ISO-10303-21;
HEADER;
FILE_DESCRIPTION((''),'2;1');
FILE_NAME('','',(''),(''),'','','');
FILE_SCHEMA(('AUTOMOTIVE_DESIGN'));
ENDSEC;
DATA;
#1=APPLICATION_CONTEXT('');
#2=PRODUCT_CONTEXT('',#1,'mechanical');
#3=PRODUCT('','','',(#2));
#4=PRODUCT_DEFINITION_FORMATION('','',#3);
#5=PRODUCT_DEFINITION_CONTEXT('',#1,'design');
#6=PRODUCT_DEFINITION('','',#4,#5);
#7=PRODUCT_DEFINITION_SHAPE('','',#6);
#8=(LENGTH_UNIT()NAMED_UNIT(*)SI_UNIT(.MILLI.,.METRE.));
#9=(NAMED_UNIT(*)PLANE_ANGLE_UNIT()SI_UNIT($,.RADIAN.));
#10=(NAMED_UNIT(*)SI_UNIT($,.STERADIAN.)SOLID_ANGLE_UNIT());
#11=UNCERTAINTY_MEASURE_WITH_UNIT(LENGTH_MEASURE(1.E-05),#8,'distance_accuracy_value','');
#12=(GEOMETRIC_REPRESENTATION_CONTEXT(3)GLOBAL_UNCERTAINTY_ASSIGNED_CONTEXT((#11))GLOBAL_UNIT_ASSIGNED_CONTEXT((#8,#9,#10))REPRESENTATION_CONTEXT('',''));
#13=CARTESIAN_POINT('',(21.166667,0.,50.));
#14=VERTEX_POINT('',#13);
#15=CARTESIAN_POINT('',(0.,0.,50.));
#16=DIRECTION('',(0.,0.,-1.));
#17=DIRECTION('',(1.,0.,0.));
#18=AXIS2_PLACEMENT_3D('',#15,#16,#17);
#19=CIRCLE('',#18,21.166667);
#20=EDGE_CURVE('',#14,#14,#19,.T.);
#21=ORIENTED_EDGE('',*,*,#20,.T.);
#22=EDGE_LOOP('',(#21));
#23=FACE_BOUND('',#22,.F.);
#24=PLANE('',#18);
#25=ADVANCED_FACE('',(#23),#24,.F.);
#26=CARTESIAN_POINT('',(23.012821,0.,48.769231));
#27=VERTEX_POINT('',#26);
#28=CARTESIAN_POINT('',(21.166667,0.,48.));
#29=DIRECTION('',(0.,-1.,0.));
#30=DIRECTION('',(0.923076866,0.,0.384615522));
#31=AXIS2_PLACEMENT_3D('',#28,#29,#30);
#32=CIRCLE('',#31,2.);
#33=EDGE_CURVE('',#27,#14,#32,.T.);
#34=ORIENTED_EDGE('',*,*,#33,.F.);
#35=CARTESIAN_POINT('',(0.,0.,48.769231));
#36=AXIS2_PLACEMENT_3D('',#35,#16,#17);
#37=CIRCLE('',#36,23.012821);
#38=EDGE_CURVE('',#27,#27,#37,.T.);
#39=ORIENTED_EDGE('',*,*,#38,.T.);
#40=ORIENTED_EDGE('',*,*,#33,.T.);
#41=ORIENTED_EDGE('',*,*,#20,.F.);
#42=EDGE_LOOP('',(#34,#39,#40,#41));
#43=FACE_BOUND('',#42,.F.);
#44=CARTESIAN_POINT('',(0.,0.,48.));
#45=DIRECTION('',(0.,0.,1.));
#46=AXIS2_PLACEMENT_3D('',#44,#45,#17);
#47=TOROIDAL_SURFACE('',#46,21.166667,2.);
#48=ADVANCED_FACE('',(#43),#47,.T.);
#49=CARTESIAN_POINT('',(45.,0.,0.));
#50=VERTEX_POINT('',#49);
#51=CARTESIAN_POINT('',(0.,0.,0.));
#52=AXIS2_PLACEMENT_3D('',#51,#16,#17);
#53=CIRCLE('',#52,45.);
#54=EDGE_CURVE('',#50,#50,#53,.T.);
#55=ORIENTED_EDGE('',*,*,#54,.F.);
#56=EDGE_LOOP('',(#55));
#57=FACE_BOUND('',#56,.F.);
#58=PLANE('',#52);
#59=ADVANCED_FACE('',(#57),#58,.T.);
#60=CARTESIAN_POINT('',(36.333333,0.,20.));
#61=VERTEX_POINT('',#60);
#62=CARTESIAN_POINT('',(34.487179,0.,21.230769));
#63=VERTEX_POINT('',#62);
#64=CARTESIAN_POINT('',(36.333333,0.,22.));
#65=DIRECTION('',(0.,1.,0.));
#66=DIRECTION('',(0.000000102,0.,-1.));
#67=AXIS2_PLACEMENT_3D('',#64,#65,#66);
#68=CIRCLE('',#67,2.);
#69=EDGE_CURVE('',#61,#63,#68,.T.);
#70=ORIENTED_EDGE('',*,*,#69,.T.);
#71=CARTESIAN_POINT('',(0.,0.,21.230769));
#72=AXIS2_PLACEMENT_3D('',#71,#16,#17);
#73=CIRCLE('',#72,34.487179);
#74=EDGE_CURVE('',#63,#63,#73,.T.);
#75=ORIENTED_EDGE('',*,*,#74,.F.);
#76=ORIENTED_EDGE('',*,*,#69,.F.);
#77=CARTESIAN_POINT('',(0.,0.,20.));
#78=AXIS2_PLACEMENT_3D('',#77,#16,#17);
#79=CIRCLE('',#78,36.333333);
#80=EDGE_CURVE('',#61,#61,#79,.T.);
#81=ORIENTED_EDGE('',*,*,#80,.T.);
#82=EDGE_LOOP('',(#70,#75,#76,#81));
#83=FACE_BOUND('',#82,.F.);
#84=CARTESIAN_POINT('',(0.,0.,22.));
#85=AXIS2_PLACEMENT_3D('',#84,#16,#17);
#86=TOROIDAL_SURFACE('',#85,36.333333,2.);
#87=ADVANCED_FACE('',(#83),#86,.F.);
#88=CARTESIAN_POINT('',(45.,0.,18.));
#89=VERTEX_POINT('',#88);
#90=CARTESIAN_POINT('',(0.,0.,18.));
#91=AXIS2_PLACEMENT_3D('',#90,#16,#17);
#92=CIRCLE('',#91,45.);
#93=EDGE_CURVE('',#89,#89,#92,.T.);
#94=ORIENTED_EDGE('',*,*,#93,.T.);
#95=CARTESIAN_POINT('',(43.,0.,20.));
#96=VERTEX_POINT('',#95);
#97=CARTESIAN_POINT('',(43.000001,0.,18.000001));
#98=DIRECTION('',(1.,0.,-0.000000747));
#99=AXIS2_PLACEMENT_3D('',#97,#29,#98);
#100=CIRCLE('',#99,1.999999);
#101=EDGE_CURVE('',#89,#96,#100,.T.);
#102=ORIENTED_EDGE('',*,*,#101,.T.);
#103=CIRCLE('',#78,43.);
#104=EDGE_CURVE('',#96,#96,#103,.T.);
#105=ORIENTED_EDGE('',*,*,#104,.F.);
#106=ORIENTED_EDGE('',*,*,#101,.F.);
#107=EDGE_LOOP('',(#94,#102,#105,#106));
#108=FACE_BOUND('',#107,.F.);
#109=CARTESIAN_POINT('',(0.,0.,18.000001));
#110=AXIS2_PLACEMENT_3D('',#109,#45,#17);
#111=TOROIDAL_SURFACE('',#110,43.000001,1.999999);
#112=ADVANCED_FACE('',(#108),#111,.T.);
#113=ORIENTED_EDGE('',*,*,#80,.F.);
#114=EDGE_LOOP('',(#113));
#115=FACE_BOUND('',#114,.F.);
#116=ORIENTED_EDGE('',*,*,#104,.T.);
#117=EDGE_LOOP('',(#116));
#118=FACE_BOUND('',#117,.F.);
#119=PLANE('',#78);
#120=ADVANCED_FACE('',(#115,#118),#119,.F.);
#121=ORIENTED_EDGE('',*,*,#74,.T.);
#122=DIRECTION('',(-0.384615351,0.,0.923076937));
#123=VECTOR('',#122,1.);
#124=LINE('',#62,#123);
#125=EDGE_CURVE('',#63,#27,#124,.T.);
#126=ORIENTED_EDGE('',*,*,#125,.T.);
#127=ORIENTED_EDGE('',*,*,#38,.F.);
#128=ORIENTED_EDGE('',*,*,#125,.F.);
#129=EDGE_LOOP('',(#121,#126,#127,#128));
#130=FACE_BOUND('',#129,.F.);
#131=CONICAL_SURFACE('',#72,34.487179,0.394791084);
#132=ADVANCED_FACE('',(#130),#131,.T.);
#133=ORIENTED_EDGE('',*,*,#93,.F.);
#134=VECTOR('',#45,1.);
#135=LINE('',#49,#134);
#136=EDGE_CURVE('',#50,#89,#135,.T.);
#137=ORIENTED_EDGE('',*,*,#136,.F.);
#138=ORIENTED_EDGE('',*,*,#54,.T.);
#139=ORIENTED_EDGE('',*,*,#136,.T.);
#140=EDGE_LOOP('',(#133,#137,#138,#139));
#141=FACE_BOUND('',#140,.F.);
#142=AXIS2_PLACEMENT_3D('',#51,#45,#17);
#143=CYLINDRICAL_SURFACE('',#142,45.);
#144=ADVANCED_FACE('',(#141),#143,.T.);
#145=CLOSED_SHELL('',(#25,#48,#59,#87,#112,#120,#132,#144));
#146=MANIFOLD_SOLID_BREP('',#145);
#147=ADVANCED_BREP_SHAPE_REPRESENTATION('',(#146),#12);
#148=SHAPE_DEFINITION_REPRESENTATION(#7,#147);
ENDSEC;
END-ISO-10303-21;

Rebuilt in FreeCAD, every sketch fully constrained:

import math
import FreeCAD as App
import Part
import Sketcher

V = App.Vector

doc = App.newDocument("Part")
params = doc.addObject("Spreadsheet::Sheet", "Params")
for row, (alias, value) in enumerate([
    ("sketch1_radius", "1.999999 mm"),
    ("sketch1_width", "45 mm"),
    ("sketch1_height", "50 mm"),
    ("sketch1_height2", "18 mm"),
    ("revolution_angle", "360 deg"),
], start=1):
    params.set(f"A{row}", alias)
    params.set(f"B{row}", "=" + value)
    params.setAlias(f"B{row}", alias)

body = doc.addObject("PartDesign::Body", "Body")

sketch1 = body.newObject("Sketcher::SketchObject", "Sketch")
sketch1.AttachmentSupport = (doc.getObject("XZ_Plane"), [""])
sketch1.MapMode = "FlatFace"
sketch1.addGeometry(Part.LineSegment(V(21.2, 50, 0), V(0, 50, 0)), False)
sketch1.addGeometry(Part.LineSegment(V(0, 50, 0), V(0, 0, 0)), False)
sketch1.addGeometry(Part.LineSegment(V(0, 0, 0), V(45, 0, 0)), False)
sketch1.addGeometry(Part.LineSegment(V(45, 0, 0), V(45, 18, 0)), False)
sketch1.addGeometry(Part.ArcOfCircle(Part.Circle(V(43, 18, 0), V(0, 0, 1), 2), math.radians(0), math.radians(90)), False)
sketch1.addGeometry(Part.LineSegment(V(43, 20, 0), V(36.3, 20, 0)), False)
sketch1.addGeometry(Part.ArcOfCircle(Part.Circle(V(36.3, 22, 0), V(0, 0, 1), 2), math.radians(-157), math.radians(-90)), False)
sketch1.addGeometry(Part.LineSegment(V(34.5, 21.2, 0), V(23, 48.8, 0)), False)
sketch1.addGeometry(Part.ArcOfCircle(Part.Circle(V(21.2, 48, 0), V(0, 0, 1), 2), math.radians(23), math.radians(90)), False)
sketch1.addConstraint(Sketcher.Constraint("Coincident", 0, 2, 1, 1))
sketch1.addConstraint(Sketcher.Constraint("Coincident", 1, 2, 2, 1))
sketch1.addConstraint(Sketcher.Constraint("Coincident", 2, 2, 3, 1))
sketch1.addConstraint(Sketcher.Constraint("Tangent", 3, 2, 4, 1))
sketch1.addConstraint(Sketcher.Constraint("Tangent", 4, 2, 5, 1))
sketch1.addConstraint(Sketcher.Constraint("Tangent", 5, 2, 6, 2))
sketch1.addConstraint(Sketcher.Constraint("Tangent", 6, 1, 7, 1))
sketch1.addConstraint(Sketcher.Constraint("Tangent", 7, 2, 8, 1))
sketch1.addConstraint(Sketcher.Constraint("Tangent", 8, 2, 0, 1))
sketch1.addConstraint(Sketcher.Constraint("Horizontal", 0))
sketch1.addConstraint(Sketcher.Constraint("Vertical", 1))
sketch1.addConstraint(Sketcher.Constraint("Horizontal", 2))
sketch1.addConstraint(Sketcher.Constraint("Vertical", 3))
sketch1.addConstraint(Sketcher.Constraint("Horizontal", 5))
sketch1.addConstraint(Sketcher.Constraint("Coincident", 1, 2, -1, 1))
sketch1.addConstraint(Sketcher.Constraint("Equal", 4, 6))
sketch1.addConstraint(Sketcher.Constraint("Equal", 6, 8))
sketch1.addConstraint(Sketcher.Constraint("Radius", 4, 1.999999))
sketch1.addConstraint(Sketcher.Constraint("DistanceX", 2, 1, 2, 2, 45.0))
sketch1.addConstraint(Sketcher.Constraint("DistanceY", 1, 2, 1, 1, 50.0))
sketch1.addConstraint(Sketcher.Constraint("DistanceY", 3, 1, 3, 2, 18.0))
sketch1.addConstraint(Sketcher.Constraint("DistanceX", 0, 2, 0, 1, 21.166667))
sketch1.addConstraint(Sketcher.Constraint("DistanceX", 5, 2, 5, 1, 6.666667))
sketch1.setExpression("Constraints[17]", "Params.sketch1_radius")
sketch1.setExpression("Constraints[18]", "Params.sketch1_width")
sketch1.setExpression("Constraints[19]", "Params.sketch1_height")
sketch1.setExpression("Constraints[20]", "Params.sketch1_height2")
revolution = body.newObject("PartDesign::Revolution", "Revolution")
revolution.Profile = sketch1
revolution.ReferenceAxis = (sketch1, ["V_Axis"])
revolution.setExpression("Angle", "Params.revolution_angle")

doc.recompute()
